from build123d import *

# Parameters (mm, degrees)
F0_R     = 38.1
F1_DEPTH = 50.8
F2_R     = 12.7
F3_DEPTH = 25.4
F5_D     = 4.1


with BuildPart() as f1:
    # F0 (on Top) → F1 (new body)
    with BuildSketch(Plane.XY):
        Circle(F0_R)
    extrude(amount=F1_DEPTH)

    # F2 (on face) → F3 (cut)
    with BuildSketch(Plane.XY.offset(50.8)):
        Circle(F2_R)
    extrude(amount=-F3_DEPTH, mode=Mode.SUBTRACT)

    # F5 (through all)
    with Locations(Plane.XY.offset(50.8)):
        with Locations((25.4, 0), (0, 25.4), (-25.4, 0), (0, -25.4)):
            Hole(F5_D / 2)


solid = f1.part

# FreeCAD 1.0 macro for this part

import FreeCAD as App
import Part
import Sketcher

V = App.Vector
Q = App.Units.Quantity

doc = App.newDocument("Part")
body = doc.addObject("PartDesign::Body", "Body")

sketch1 = body.newObject("Sketcher::SketchObject", "Sketch")
sketch1.AttachmentSupport = (doc.getObject("XY_Plane"), [""])
sketch1.MapMode = "FlatFace"
sketch1.addGeometry(Part.Circle(V(0, 0, 0), V(0, 0, 1), 38), False)
sketch1.addConstraint(Sketcher.Constraint("Coincident", 0, 3, -1, 1))
sketch1.addConstraint(Sketcher.Constraint("Diameter", 0, Q("3 in")))
pad1 = body.newObject("PartDesign::Pad", "Pad")
pad1.Profile = sketch1
pad1.Length = Q("2 in")

sketch2 = body.newObject("Sketcher::SketchObject", "Sketch001")
sketch2.AttachmentSupport = (doc.getObject("XY_Plane"), [""])
sketch2.MapMode = "FlatFace"
sketch2.AttachmentOffset = App.Placement(V(0, 0, 2 * 25.4), App.Rotation())
sketch2.addGeometry(Part.Circle(V(0, 0, 0), V(0, 0, 1), 13), False)
sketch2.addConstraint(Sketcher.Constraint("Coincident", 0, 3, -1, 1))
sketch2.addConstraint(Sketcher.Constraint("Diameter", 0, Q("1 in")))
pocket1 = body.newObject("PartDesign::Pocket", "Pocket")
pocket1.Profile = sketch2
pocket1.Length = Q("1 in")

sketch3 = body.newObject("Sketcher::SketchObject", "Sketch002")
sketch3.AttachmentSupport = (doc.getObject("XY_Plane"), [""])
sketch3.MapMode = "FlatFace"
sketch3.AttachmentOffset = App.Placement(V(0, 0, 2 * 25.4), App.Rotation())
sketch3.addGeometry(Part.Circle(V(25.4, 0, 0), V(0, 0, 1), 2), False)
sketch3.addGeometry(Part.Circle(V(0, 25.4, 0), V(0, 0, 1), 2), False)
sketch3.addGeometry(Part.Circle(V(-25.4, 0, 0), V(0, 0, 1), 2), False)
sketch3.addGeometry(Part.Circle(V(0, -25.4, 0), V(0, 0, 1), 2), False)
sketch3.addConstraint(Sketcher.Constraint("Equal", 0, 1))
sketch3.addConstraint(Sketcher.Constraint("Equal", 1, 2))
sketch3.addConstraint(Sketcher.Constraint("Equal", 2, 3))
sketch3.addConstraint(Sketcher.Constraint("Symmetric", 0, 3, 2, 3, -1, 1))
sketch3.addConstraint(Sketcher.Constraint("Symmetric", 1, 3, 3, 3, -1, 1))
sketch3.addConstraint(Sketcher.Constraint("PointOnObject", 0, 3, -1))
sketch3.addConstraint(Sketcher.Constraint("PointOnObject", 1, 3, -2))
sketch3.addConstraint(Sketcher.Constraint("DistanceX", -1, 1, 0, 3, Q("1 in")))
sketch3.addConstraint(Sketcher.Constraint("DistanceY", -1, 1, 1, 3, Q("1 in")))
sketch3.addConstraint(Sketcher.Constraint("Diameter", 0, Q("4.1 mm")))
doc.recompute()
hole = body.newObject("PartDesign::Hole", "Hole")
hole.Profile = sketch3
hole.ThreadType = "None"
hole.Diameter = 4.1
hole.DepthType = "ThroughAll"

doc.recompute()
